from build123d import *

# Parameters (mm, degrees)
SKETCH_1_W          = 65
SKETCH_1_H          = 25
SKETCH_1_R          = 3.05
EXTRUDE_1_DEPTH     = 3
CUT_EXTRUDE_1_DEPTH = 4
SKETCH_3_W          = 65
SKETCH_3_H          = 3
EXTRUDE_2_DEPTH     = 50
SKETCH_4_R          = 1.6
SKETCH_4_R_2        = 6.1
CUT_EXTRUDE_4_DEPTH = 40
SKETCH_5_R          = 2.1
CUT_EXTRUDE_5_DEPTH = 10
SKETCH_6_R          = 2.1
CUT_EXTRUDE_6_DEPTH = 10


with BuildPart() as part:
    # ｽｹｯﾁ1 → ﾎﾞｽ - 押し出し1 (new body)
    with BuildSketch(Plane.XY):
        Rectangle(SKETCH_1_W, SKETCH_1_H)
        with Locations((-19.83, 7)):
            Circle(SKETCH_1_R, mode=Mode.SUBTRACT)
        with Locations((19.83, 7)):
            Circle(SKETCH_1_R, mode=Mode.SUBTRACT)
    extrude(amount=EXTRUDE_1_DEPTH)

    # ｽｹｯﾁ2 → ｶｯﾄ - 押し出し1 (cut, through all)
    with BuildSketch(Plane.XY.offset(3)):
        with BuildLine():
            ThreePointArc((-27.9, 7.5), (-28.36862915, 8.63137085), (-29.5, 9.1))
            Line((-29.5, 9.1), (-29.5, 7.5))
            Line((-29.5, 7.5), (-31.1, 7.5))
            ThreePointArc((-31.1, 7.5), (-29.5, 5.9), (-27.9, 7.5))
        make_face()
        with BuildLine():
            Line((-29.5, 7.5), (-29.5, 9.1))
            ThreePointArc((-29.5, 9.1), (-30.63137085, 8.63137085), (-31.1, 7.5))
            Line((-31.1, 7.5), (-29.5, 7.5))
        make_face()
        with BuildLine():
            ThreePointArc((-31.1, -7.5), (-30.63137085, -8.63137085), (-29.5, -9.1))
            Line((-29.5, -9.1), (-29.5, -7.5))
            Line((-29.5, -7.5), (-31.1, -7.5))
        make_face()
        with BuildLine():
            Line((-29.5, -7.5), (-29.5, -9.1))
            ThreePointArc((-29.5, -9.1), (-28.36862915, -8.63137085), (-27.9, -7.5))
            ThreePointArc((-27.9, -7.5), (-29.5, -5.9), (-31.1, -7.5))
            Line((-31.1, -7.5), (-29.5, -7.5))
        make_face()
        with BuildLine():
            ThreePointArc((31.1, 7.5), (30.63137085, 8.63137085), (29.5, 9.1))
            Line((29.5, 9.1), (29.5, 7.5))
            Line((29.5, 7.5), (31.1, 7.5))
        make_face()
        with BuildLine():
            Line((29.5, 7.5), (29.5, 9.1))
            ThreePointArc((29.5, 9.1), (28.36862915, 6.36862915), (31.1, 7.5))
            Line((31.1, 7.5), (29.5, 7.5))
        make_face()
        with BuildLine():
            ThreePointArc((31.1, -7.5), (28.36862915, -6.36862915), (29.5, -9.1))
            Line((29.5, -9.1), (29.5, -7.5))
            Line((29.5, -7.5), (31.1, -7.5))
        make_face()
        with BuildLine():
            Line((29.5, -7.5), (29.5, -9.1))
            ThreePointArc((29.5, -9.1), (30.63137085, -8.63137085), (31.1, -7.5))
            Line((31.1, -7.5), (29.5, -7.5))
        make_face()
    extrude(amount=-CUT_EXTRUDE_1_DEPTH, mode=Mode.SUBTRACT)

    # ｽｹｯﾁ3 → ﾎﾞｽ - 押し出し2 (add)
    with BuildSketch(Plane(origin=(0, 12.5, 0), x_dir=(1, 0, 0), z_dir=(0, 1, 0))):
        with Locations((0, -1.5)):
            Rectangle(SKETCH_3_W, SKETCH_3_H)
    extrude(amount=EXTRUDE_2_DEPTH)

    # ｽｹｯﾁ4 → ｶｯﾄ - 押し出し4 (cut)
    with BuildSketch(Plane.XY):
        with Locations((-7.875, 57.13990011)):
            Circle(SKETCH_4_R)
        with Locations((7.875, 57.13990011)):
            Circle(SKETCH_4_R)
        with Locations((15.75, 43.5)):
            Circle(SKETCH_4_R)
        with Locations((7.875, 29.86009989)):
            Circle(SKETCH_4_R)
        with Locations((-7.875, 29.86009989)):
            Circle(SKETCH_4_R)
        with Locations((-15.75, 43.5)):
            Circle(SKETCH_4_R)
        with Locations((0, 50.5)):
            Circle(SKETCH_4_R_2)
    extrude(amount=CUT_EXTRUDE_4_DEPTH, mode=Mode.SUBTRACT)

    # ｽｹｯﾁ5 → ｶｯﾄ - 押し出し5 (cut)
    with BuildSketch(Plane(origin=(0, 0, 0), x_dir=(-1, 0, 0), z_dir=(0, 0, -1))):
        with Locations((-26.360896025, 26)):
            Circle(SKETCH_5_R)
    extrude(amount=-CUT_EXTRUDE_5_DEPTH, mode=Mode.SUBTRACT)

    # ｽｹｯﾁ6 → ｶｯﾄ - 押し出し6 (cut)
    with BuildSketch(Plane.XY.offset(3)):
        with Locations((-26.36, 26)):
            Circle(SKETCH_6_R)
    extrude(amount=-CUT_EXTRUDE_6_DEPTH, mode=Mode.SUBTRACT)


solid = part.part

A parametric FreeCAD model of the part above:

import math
import FreeCAD as App
import Part
import Sketcher
Q = App.Units.Quantity

doc = App.newDocument("Part")
body = doc.addObject("PartDesign::Body", "Body")

sketch1 = body.newObject("Sketcher::SketchObject", "Sketch")
sketch1.AttachmentSupport = (doc.getObject("XY_Plane"), [""])
sketch1.MapMode = "FlatFace"
sketch1.addGeometry([
    Part.LineSegment(App.Vector(-32.5, 12.5, 0), App.Vector(-32.5, -12.5, 0)),
    Part.LineSegment(App.Vector(-32.5, -12.5, 0), App.Vector(32.5, -12.5, 0)),
    Part.LineSegment(App.Vector(32.5, -12.5, 0), App.Vector(32.5, 12.5, 0)),
    Part.LineSegment(App.Vector(32.5, 12.5, 0), App.Vector(-32.5, 12.5, 0)),
    Part.Circle(App.Vector(-19.83, 7, 0), App.Vector(0, 0, 1), 3.05),
    Part.Circle(App.Vector(19.83, 7, 0), App.Vector(0, 0, 1), 3.05),
], False)
sketch1.addConstraint([
    Sketcher.Constraint("Coincident", 0, 2, 1, 1),
    Sketcher.Constraint("Coincident", 1, 2, 2, 1),
    Sketcher.Constraint("Coincident", 2, 2, 3, 1),
    Sketcher.Constraint("Coincident", 3, 2, 0, 1),
    Sketcher.Constraint("Vertical", 0),
    Sketcher.Constraint("Horizontal", 1),
    Sketcher.Constraint("Vertical", 2),
    Sketcher.Constraint("Horizontal", 3),
    Sketcher.Constraint("Equal", 4, 5),
    Sketcher.Constraint("Symmetric", 0, 2, 2, 2, -1, 1),
    Sketcher.Constraint("Symmetric", 4, 3, 5, 3, -2),
    Sketcher.Constraint("Diameter", 4, Q("6.1 mm")),
    Sketcher.Constraint("DistanceX", 1, 1, 1, 2, Q("65 mm")),
    Sketcher.Constraint("DistanceY", 0, 2, 0, 1, Q("25 mm")),
    Sketcher.Constraint("DistanceY", -1, 1, 4, 3, Q("7 mm")),
    Sketcher.Constraint("DistanceX", 4, 3, -1, 1, Q("19.83 mm")),
])
pad1 = body.newObject("PartDesign::Pad", "Pad")
pad1.Profile = sketch1
pad1.Length = 3

sketch2 = body.newObject("Sketcher::SketchObject", "Sketch001")
sketch2.AttachmentSupport = (doc.getObject("XY_Plane"), [""])
sketch2.MapMode = "FlatFace"
sketch2.AttachmentOffset = App.Placement(App.Vector(0, 0, 3), App.Rotation())
sketch2.addGeometry([
    Part.ArcOfCircle(Part.Circle(App.Vector(-29.5, 7.5, 0), App.Vector(0, 0, 1), 1.6), math.radians(0), math.radians(90)),
    Part.ArcOfCircle(Part.Circle(App.Vector(-29.5, 7.5, 0), App.Vector(0, 0, 1), 1.6), math.radians(90), math.radians(180)),
    Part.ArcOfCircle(Part.Circle(App.Vector(-29.5, 7.5, 0), App.Vector(0, 0, 1), 1.6), math.radians(180), math.radians(360)),
    Part.ArcOfCircle(Part.Circle(App.Vector(-29.5, -7.5, 0), App.Vector(0, 0, 1), 1.6), math.radians(180), math.radians(270)),
    Part.ArcOfCircle(Part.Circle(App.Vector(-29.5, -7.5, 0), App.Vector(0, 0, 1), 1.6), math.radians(-90), math.radians(0)),
    Part.ArcOfCircle(Part.Circle(App.Vector(-29.5, -7.5, 0), App.Vector(0, 0, 1), 1.6), math.radians(0), math.radians(180)),
    Part.ArcOfCircle(Part.Circle(App.Vector(29.5, 7.5, 0), App.Vector(0, 0, 1), 1.6), math.radians(0), math.radians(90)),
    Part.ArcOfCircle(Part.Circle(App.Vector(29.5, 7.5, 0), App.Vector(0, 0, 1), 1.6), math.radians(90), math.radians(360)),
    Part.ArcOfCircle(Part.Circle(App.Vector(29.5, -7.5, 0), App.Vector(0, 0, 1), 1.6), math.radians(0), math.radians(270)),
    Part.ArcOfCircle(Part.Circle(App.Vector(29.5, -7.5, 0), App.Vector(0, 0, 1), 1.6), math.radians(-90), math.radians(0)),
], False)
sketch2.addConstraint([
    Sketcher.Constraint("Tangent", 0, 2, 1, 1),
    Sketcher.Constraint("Tangent", 1, 2, 2, 1),
    Sketcher.Constraint("Tangent", 2, 2, 0, 1),
    Sketcher.Constraint("Tangent", 3, 2, 4, 1),
    Sketcher.Constraint("Tangent", 4, 2, 5, 1),
    Sketcher.Constraint("Tangent", 5, 2, 3, 1),
    Sketcher.Constraint("Tangent", 6, 1, 7, 2),
    Sketcher.Constraint("Coincident", 7, 1, 6, 2),
    Sketcher.Constraint("Tangent", 8, 1, 9, 2),
    Sketcher.Constraint("Coincident", 9, 1, 8, 2),
    Sketcher.Constraint("Equal", 2, 3),
    Sketcher.Constraint("Equal", 5, 6),
    Sketcher.Constraint("Equal", 7, 8),
    Sketcher.Constraint("Symmetric", 3, 3, 6, 3, -1, 1),
    Sketcher.Constraint("Symmetric", 0, 3, 8, 3, -1, 1),
    Sketcher.Constraint("Symmetric", 0, 3, 6, 3, -2),
    Sketcher.Constraint("Horizontal", 7, 3, 1, 2),
    Sketcher.Constraint("Horizontal", 1, 2, 2, 2),
    Sketcher.Constraint("Horizontal", 9, 3, 4, 2),
    Sketcher.Constraint("Horizontal", 4, 2, 5, 2),
    Sketcher.Constraint("Horizontal", 2, 2, 6, 1),
    Sketcher.Constraint("Horizontal", 5, 2, 8, 1),
    Sketcher.Constraint("Vertical", 5, 3, 0, 2),
    Sketcher.Constraint("Vertical", 0, 2, 3, 2),
    Sketcher.Constraint("Vertical", 9, 3, 7, 1),
    Sketcher.Constraint("Vertical", 7, 1, 9, 1),
    Sketcher.Constraint("Radius", 0, Q("1.6 mm")),
    Sketcher.Constraint("DistanceY", 3, 3, 0, 3, Q("15 mm")),
    Sketcher.Constraint("DistanceX", 0, 3, 6, 3, Q("59 mm")),
])
pocket1 = body.newObject("PartDesign::Pocket", "Pocket")
pocket1.Profile = sketch2
pocket1.Type = "ThroughAll"

sketch3 = body.newObject("Sketcher::SketchObject", "Sketch002")
sketch3.AttachmentSupport = (doc.getObject("XZ_Plane"), [""])
sketch3.MapMode = "FlatFace"
sketch3.AttachmentOffset = App.Placement(App.Vector(0, 0, -12.5), App.Rotation())
sketch3.addGeometry([
    Part.LineSegment(App.Vector(-32.5, 0, 0), App.Vector(-32.5, 3, 0)),
    Part.LineSegment(App.Vector(-32.5, 3, 0), App.Vector(32.5, 3, 0)),
    Part.LineSegment(App.Vector(32.5, 3, 0), App.Vector(32.5, 0, 0)),
    Part.LineSegment(App.Vector(32.5, 0, 0), App.Vector(-32.5, 0, 0)),
], False)
sketch3.addConstraint([
    Sketcher.Constraint("Coincident", 0, 2, 1, 1),
    Sketcher.Constraint("Coincident", 1, 2, 2, 1),
    Sketcher.Constraint("Coincident", 2, 2, 3, 1),
    Sketcher.Constraint("Coincident", 3, 2, 0, 1),
    Sketcher.Constraint("Vertical", 0),
    Sketcher.Constraint("Horizontal", 1),
    Sketcher.Constraint("Vertical", 2),
    Sketcher.Constraint("Horizontal", 3),
    Sketcher.Constraint("Symmetric", 2, 2, 3, 2, -1, 1),
    Sketcher.Constraint("DistanceX", 1, 1, 1, 2, Q("65 mm")),
    Sketcher.Constraint("DistanceY", 0, 1, 0, 2, Q("3 mm")),
])
pad2 = body.newObject("PartDesign::Pad", "Pad001")
pad2.Profile = sketch3
pad2.Length = 50
pad2.Reversed = True

sketch4 = body.newObject("Sketcher::SketchObject", "Sketch003")
sketch4.AttachmentSupport = (doc.getObject("XY_Plane"), [""])
sketch4.MapMode = "FlatFace"
sketch4.addGeometry([
    Part.Circle(App.Vector(-7.875, 57.1399, 0), App.Vector(0, 0, 1), 1.6),
    Part.Circle(App.Vector(7.875, 57.1399, 0), App.Vector(0, 0, 1), 1.6),
    Part.Circle(App.Vector(15.75, 43.5, 0), App.Vector(0, 0, 1), 1.6),
    Part.Circle(App.Vector(7.875, 29.8601, 0), App.Vector(0, 0, 1), 1.6),
    Part.Circle(App.Vector(-7.875, 29.8601, 0), App.Vector(0, 0, 1), 1.6),
    Part.Circle(App.Vector(-15.75, 43.5, 0), App.Vector(0, 0, 1), 1.6),
    Part.Circle(App.Vector(0, 50.5, 0), App.Vector(0, 0, 1), 6.1),
], False)
sketch4.addConstraint([
    Sketcher.Constraint("Equal", 0, 1),
    Sketcher.Constraint("Equal", 1, 2),
    Sketcher.Constraint("Equal", 2, 3),
    Sketcher.Constraint("Equal", 3, 4),
    Sketcher.Constraint("Equal", 4, 5),
    Sketcher.Constraint("Symmetric", 0, 3, 1, 3, -2),
    Sketcher.Constraint("Symmetric", 3, 3, 4, 3, -2),
    Sketcher.Constraint("Symmetric", 2, 3, 5, 3, -2),
    Sketcher.Constraint("PointOnObject", 6, 3, -2),
    Sketcher.Constraint("Vertical", 1, 3, 3, 3),
    Sketcher.Constraint("Diameter", 0, Q("3.2 mm")),
    Sketcher.Constraint("Diameter", 6, Q("12.2 mm")),
    Sketcher.Constraint("DistanceY", 2, 3, 6, 3, Q("7 mm")),
    Sketcher.Constraint("DistanceY", -1, 1, 2, 3, Q("43.5 mm")),
    Sketcher.Constraint("DistanceX", 5, 3, 2, 3, Q("31.5 mm")),
    Sketcher.Constraint("DistanceX", 0, 3, 1, 3, Q("15.75 mm")),
    Sketcher.Constraint("DistanceY", -1, 1, 0, 3, Q("57.1399 mm")),
    Sketcher.Constraint("DistanceY", -1, 1, 3, 3, Q("29.8601 mm")),
])
pocket2 = body.newObject("PartDesign::Pocket", "Pocket001")
pocket2.Profile = sketch4
pocket2.Length = 40
pocket2.Reversed = True

sketch5 = body.newObject("Sketcher::SketchObject", "Sketch004")
sketch5.AttachmentSupport = (doc.getObject("XY_Plane"), [""])
sketch5.MapMode = "FlatFace"
sketch5.addGeometry(Part.Circle(App.Vector(26.360896, 26, 0), App.Vector(0, 0, 1), 2.1), False)
sketch5.addConstraint([
    Sketcher.Constraint("Diameter", 0, Q("4.2 mm")),
    Sketcher.Constraint("DistanceY", -1, 1, 0, 3, Q("26 mm")),
    Sketcher.Constraint("DistanceX", -1, 1, 0, 3, Q("26.360896 mm")),
])
pocket3 = body.newObject("PartDesign::Pocket", "Pocket002")
pocket3.Profile = sketch5
pocket3.Length = 10
pocket3.Reversed = True

sketch6 = body.newObject("Sketcher::SketchObject", "Sketch005")
sketch6.AttachmentSupport = (doc.getObject("XY_Plane"), [""])
sketch6.MapMode = "FlatFace"
sketch6.AttachmentOffset = App.Placement(App.Vector(0, 0, 3), App.Rotation())
sketch6.addGeometry(Part.Circle(App.Vector(-26.36, 26, 0), App.Vector(0, 0, 1), 2.1), False)
sketch6.addConstraint([
    Sketcher.Constraint("Diameter", 0, Q("4.2 mm")),
    Sketcher.Constraint("DistanceY", -1, 1, 0, 3, Q("26 mm")),
    Sketcher.Constraint("DistanceX", 0, 3, -1, 1, Q("26.36 mm")),
])
pocket4 = body.newObject("PartDesign::Pocket", "Pocket003")
pocket4.Profile = sketch6
pocket4.Length = 10

doc.recompute()
